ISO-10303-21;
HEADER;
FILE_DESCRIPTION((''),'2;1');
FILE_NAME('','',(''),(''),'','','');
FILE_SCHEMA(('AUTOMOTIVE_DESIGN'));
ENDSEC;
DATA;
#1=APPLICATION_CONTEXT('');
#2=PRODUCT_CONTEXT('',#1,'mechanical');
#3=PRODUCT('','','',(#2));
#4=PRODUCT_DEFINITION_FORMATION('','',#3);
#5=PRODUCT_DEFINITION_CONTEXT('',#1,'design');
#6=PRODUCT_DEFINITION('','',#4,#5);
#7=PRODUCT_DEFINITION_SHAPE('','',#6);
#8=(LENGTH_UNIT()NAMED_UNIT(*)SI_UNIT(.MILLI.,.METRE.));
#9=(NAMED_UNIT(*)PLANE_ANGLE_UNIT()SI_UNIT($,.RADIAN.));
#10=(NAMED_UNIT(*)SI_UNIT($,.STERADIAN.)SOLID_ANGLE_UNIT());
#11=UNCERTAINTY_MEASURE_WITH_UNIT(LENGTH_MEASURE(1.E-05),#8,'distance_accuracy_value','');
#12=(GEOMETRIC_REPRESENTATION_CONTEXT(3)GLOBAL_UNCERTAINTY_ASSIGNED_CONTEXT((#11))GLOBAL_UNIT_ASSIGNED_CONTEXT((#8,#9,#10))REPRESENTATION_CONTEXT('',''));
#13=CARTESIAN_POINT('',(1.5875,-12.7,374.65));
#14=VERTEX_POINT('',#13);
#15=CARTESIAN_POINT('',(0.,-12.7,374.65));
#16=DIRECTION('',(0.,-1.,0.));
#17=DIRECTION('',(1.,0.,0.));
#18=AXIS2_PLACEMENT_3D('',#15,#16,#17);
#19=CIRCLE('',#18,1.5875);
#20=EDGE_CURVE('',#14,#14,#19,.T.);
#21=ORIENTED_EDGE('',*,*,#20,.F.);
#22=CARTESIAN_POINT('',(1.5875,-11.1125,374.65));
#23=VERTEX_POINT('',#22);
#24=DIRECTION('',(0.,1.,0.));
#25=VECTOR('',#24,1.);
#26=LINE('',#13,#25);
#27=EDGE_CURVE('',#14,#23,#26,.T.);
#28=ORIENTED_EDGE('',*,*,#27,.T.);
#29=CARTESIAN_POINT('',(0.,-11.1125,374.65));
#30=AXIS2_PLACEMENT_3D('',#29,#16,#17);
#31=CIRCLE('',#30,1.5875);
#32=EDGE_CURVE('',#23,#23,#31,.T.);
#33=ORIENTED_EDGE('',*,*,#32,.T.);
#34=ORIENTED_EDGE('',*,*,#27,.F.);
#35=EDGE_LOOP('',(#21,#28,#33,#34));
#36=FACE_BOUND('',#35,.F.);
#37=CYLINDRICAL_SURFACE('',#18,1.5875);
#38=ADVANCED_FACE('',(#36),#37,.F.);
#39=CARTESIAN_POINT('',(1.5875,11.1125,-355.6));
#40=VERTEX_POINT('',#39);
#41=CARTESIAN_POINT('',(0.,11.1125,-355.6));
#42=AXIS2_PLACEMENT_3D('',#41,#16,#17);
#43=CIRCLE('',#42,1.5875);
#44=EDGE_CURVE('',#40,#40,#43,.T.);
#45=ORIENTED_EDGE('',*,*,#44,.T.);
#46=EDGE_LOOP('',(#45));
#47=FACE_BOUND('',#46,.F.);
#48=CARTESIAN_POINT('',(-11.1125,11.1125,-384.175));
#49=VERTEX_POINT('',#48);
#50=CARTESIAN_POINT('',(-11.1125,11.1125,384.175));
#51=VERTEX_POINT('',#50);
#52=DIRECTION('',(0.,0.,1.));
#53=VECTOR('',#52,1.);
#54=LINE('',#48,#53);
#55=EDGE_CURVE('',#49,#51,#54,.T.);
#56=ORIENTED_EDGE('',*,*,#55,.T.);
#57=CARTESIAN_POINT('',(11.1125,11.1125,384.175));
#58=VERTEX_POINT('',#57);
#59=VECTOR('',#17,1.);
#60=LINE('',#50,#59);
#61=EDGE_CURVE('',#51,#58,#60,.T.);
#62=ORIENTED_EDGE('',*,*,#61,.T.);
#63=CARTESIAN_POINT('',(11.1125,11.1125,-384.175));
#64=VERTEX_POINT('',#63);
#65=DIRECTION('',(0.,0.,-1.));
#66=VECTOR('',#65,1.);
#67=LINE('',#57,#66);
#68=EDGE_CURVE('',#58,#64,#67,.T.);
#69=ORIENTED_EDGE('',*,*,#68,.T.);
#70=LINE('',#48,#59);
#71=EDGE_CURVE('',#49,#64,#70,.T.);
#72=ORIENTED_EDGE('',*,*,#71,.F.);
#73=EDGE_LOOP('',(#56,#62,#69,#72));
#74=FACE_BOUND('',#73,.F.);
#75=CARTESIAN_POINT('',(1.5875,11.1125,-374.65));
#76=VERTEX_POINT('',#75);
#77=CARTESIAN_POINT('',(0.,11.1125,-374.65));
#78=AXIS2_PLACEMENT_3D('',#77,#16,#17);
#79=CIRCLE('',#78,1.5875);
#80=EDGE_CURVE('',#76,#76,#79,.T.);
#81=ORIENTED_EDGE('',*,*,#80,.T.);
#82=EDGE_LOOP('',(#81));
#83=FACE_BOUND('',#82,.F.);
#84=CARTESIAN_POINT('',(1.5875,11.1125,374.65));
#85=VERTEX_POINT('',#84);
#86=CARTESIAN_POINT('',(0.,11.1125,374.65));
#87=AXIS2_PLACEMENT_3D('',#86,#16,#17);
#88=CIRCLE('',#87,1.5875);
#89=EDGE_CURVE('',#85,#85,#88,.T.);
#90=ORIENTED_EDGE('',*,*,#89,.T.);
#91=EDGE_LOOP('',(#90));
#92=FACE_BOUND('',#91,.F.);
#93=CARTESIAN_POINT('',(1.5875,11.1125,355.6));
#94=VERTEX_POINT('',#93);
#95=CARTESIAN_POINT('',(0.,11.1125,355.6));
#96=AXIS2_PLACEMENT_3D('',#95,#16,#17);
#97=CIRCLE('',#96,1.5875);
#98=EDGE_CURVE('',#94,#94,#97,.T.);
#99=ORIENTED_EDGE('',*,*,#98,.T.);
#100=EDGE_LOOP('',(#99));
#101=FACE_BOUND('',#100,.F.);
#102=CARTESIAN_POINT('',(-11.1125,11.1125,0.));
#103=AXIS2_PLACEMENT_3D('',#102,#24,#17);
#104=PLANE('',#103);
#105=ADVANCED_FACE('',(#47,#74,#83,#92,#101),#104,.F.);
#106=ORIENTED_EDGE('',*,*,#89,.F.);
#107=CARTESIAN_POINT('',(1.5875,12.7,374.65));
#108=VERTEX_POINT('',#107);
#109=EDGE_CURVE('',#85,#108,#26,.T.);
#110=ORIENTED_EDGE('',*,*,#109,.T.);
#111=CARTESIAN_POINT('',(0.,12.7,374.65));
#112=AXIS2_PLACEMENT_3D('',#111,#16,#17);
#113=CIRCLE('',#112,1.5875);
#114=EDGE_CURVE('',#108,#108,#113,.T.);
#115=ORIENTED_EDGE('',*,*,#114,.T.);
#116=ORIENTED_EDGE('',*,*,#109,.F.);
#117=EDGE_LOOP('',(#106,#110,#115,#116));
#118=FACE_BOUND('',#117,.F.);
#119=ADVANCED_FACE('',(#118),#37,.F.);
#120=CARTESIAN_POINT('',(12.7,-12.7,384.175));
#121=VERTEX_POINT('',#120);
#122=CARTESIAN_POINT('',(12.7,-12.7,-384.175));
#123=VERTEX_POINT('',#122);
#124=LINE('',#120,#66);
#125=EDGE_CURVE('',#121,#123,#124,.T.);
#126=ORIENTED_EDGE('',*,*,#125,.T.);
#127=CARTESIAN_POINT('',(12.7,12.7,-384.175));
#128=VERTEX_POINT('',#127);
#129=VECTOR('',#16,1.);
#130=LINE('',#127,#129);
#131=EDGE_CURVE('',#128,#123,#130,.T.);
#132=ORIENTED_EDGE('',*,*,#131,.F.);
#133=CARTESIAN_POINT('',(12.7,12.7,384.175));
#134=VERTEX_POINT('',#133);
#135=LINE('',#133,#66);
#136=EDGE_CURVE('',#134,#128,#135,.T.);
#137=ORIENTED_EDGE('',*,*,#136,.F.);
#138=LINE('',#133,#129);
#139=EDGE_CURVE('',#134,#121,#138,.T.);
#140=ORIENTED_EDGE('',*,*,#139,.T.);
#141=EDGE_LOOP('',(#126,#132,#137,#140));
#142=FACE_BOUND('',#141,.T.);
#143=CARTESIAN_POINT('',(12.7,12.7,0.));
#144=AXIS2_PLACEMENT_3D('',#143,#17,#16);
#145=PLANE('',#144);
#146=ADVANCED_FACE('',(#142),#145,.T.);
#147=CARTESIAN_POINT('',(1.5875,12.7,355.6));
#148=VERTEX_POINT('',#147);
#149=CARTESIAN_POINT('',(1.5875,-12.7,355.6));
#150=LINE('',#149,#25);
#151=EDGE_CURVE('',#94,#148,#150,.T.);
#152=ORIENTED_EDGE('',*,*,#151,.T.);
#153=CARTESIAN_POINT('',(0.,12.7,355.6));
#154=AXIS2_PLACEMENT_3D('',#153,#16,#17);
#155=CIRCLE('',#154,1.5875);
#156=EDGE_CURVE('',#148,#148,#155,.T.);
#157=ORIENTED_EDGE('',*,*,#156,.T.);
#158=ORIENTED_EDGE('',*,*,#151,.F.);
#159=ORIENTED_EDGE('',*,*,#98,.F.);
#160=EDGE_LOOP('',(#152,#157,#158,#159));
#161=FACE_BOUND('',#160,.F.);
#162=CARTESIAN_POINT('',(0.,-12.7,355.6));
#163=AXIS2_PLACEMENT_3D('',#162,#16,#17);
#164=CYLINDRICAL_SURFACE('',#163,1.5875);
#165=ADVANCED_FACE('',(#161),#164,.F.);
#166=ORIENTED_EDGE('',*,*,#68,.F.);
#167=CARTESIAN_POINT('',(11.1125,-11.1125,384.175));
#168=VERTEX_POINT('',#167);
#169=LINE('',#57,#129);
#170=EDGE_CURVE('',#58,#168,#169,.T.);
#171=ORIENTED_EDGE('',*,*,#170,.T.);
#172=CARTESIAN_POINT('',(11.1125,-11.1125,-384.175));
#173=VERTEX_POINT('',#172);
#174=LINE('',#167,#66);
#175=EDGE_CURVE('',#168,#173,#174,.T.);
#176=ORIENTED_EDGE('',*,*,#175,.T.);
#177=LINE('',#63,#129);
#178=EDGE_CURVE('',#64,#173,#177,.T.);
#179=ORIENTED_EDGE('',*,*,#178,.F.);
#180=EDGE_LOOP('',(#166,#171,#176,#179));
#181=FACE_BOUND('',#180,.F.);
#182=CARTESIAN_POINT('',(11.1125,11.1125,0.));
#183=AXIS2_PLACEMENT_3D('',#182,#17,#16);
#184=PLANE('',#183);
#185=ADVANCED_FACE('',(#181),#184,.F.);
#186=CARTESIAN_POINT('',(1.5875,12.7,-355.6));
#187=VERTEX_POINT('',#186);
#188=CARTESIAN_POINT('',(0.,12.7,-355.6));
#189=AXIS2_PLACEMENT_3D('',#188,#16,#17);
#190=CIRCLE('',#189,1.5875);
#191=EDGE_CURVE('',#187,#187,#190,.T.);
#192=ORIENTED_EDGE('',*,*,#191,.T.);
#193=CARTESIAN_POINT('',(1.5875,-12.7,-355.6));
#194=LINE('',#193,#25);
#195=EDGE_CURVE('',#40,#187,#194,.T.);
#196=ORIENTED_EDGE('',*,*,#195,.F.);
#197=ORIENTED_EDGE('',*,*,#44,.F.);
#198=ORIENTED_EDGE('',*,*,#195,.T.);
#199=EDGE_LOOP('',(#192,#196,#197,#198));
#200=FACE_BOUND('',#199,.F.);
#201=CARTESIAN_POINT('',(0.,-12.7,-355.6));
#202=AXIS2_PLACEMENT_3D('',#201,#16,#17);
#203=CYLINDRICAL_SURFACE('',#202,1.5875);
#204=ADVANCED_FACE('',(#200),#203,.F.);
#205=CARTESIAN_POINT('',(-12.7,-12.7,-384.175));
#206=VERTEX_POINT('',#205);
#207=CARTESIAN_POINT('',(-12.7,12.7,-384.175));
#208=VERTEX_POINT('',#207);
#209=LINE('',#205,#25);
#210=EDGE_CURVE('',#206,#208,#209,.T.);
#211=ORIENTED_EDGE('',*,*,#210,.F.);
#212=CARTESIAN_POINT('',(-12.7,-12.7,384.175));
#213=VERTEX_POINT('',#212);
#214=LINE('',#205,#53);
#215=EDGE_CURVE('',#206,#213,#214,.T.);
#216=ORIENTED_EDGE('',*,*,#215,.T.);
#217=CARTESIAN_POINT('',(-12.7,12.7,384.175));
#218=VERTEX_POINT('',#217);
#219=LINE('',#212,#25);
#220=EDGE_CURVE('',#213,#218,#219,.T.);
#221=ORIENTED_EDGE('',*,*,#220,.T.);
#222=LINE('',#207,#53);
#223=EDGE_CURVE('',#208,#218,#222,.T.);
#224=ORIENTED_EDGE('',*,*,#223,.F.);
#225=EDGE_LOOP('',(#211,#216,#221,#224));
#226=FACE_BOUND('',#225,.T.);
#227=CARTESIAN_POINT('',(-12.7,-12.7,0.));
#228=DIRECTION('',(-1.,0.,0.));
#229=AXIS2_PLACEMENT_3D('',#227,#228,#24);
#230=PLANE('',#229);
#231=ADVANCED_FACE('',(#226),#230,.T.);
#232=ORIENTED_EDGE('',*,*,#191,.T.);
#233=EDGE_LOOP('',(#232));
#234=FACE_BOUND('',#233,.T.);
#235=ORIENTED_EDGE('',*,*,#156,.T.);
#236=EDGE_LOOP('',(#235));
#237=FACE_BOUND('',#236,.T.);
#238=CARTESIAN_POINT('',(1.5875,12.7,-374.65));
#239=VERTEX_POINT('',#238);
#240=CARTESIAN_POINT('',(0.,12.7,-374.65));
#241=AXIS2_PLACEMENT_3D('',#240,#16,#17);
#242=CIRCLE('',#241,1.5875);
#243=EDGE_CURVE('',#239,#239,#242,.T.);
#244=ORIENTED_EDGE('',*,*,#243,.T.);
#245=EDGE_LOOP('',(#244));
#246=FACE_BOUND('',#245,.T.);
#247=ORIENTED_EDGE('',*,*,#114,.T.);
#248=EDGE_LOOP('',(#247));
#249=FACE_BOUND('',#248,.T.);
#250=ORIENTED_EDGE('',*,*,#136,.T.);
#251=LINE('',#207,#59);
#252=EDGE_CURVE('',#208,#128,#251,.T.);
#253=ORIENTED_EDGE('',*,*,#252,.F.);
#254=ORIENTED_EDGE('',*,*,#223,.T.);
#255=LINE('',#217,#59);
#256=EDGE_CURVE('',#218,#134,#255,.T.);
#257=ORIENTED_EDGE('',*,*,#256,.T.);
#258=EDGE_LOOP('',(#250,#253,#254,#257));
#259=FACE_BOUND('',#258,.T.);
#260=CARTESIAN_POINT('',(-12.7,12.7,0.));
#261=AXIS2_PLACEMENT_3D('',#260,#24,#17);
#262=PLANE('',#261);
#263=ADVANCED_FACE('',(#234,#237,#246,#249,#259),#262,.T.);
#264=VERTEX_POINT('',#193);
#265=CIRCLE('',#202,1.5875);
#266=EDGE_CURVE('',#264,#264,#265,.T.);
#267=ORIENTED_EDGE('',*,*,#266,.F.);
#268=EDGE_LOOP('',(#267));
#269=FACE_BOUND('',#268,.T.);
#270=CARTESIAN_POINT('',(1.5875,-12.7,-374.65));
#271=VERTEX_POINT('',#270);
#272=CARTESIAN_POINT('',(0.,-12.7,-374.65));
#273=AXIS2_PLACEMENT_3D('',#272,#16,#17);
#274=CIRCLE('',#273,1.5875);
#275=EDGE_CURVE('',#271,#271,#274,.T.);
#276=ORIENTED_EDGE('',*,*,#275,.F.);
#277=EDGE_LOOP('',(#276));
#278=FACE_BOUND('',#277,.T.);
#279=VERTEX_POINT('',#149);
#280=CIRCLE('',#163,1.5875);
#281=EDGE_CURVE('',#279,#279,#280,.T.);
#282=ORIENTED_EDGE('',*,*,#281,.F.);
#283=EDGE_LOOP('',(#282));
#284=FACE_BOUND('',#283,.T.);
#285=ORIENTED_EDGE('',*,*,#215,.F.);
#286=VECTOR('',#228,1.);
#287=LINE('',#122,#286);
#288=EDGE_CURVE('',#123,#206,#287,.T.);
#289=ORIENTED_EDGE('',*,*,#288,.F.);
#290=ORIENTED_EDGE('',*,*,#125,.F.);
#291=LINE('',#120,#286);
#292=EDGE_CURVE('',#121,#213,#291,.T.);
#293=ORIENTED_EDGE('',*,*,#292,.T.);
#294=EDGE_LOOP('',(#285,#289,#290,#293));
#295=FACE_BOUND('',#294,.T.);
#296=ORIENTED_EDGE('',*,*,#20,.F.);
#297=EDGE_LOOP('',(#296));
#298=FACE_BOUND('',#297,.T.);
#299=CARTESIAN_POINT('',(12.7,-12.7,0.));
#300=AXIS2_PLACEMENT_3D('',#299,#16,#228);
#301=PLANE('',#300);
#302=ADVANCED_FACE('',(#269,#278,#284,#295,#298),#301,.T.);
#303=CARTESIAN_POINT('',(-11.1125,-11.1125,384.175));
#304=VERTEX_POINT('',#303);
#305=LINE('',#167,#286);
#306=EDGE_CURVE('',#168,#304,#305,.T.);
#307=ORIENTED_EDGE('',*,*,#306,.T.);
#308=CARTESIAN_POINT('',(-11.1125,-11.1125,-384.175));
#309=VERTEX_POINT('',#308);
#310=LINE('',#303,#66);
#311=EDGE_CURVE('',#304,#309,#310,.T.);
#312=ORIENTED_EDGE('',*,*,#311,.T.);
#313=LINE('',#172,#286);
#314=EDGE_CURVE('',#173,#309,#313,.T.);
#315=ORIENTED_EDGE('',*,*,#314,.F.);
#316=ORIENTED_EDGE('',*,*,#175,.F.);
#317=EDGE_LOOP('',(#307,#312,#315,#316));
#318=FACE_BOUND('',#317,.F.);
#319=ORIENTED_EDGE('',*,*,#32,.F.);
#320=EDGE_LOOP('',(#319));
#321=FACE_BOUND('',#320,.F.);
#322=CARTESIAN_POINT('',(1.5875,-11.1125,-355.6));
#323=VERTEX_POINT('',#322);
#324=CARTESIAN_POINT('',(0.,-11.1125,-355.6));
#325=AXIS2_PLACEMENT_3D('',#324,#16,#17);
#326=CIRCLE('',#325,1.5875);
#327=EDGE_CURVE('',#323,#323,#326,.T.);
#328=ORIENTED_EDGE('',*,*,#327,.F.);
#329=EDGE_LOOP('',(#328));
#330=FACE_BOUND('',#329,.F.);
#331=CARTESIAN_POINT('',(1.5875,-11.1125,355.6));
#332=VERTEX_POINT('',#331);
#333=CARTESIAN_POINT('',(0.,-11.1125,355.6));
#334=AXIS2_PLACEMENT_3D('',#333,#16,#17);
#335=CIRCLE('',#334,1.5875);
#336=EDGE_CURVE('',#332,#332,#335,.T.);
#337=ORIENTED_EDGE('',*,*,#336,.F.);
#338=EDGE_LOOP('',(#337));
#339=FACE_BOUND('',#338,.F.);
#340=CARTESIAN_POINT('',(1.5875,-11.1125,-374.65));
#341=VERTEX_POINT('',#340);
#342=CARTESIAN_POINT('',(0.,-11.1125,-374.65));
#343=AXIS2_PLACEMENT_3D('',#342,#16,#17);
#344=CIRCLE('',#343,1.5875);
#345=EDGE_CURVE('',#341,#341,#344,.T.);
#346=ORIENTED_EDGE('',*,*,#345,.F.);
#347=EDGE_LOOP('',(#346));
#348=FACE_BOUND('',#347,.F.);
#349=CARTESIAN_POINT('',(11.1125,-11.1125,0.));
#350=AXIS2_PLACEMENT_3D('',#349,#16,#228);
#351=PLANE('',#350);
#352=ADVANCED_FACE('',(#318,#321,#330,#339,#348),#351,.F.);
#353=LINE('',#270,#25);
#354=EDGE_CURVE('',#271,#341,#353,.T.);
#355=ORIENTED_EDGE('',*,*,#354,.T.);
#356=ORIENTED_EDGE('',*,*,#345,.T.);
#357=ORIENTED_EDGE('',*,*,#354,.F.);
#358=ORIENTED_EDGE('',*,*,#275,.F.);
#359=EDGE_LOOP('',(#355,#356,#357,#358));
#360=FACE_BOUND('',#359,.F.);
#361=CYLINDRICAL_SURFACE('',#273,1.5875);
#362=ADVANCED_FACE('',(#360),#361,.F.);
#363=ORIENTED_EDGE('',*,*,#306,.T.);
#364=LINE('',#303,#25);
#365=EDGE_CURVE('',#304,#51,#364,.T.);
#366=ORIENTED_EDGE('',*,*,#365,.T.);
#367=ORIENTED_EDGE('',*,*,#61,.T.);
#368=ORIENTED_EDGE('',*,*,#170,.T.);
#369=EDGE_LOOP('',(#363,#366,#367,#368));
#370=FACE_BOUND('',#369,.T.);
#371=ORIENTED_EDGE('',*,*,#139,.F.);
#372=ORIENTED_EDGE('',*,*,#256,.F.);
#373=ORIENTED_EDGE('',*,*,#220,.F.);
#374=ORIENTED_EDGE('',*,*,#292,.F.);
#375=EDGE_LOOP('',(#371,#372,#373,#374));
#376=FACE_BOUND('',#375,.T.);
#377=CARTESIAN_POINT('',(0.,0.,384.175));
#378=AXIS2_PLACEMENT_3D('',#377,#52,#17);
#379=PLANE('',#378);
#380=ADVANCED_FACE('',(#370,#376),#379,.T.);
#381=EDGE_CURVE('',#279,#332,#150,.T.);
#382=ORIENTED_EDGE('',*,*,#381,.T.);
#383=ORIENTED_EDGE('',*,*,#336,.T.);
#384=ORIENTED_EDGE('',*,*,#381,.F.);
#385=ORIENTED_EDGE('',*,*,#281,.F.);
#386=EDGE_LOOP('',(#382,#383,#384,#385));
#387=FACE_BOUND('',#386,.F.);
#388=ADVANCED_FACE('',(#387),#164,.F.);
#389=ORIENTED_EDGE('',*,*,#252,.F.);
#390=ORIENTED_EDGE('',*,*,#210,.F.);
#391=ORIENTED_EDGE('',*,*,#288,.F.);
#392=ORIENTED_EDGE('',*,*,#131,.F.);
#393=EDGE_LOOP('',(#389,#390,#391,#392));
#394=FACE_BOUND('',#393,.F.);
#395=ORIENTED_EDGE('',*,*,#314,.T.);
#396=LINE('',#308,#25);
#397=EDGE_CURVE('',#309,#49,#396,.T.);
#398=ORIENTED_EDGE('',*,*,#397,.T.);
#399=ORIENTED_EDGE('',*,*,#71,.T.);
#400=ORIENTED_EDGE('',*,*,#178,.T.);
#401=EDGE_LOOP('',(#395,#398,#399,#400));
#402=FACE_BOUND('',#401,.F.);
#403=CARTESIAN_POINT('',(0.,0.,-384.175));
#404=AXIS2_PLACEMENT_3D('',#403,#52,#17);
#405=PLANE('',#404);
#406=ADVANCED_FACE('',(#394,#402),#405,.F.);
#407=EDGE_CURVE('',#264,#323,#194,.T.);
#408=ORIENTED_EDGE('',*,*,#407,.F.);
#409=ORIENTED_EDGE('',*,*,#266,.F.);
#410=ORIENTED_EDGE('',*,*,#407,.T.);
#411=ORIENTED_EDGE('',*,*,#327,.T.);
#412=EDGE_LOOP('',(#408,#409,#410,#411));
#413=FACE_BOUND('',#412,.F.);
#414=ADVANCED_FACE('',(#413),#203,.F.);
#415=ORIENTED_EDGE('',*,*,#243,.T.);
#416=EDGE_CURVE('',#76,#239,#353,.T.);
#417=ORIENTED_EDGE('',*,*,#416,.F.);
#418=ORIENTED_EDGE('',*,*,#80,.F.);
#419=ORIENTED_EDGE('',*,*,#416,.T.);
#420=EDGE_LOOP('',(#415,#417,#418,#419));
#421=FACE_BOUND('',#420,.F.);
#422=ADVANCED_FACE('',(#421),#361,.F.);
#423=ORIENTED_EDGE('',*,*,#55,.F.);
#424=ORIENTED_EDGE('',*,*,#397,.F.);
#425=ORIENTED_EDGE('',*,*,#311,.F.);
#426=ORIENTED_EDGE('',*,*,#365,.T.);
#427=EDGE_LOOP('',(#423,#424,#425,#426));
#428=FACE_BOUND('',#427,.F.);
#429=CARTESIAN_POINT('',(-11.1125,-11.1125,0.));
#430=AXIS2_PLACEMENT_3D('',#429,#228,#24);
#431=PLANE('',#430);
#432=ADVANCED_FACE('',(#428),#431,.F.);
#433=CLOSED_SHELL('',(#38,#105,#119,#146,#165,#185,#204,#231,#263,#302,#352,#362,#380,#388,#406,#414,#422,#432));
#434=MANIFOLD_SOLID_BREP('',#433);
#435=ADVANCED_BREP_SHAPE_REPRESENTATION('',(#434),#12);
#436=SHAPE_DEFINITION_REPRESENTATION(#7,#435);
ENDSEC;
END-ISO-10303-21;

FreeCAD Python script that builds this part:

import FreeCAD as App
import Part
import Sketcher
Q = App.Units.Quantity

doc = App.newDocument("Part")
body = doc.addObject("PartDesign::Body", "Body")

sketch1 = doc.addObject("Sketcher::SketchObject", "Sketch")
body.addObject(sketch1)
sketch1.AttachmentSupport = (doc.XY_Plane, [""])
sketch1.MapMode = "FlatFace"
sketch1.addGeometry([
    Part.LineSegment(App.Vector(12.7, 12.7, 0), App.Vector(-12.7, 12.7, 0)),
    Part.LineSegment(App.Vector(-12.7, 12.7, 0), App.Vector(-12.7, -12.7, 0)),
    Part.LineSegment(App.Vector(-12.7, -12.7, 0), App.Vector(12.7, -12.7, 0)),
    Part.LineSegment(App.Vector(12.7, -12.7, 0), App.Vector(12.7, 12.7, 0)),
    Part.LineSegment(App.Vector(-11.1125, -11.1125, 0), App.Vector(-11.1125, 11.1125, 0)),
    Part.LineSegment(App.Vector(-11.1125, 11.1125, 0), App.Vector(11.1125, 11.1125, 0)),
    Part.LineSegment(App.Vector(11.1125, 11.1125, 0), App.Vector(11.1125, -11.1125, 0)),
    Part.LineSegment(App.Vector(11.1125, -11.1125, 0), App.Vector(-11.1125, -11.1125, 0)),
], False)
sketch1.addConstraint([
    Sketcher.Constraint("Coincident", 0, 2, 1, 1),
    Sketcher.Constraint("Coincident", 1, 2, 2, 1),
    Sketcher.Constraint("Coincident", 2, 2, 3, 1),
    Sketcher.Constraint("Coincident", 3, 2, 0, 1),
    Sketcher.Constraint("Coincident", 4, 2, 5, 1),
    Sketcher.Constraint("Coincident", 5, 2, 6, 1),
    Sketcher.Constraint("Coincident", 6, 2, 7, 1),
    Sketcher.Constraint("Coincident", 7, 2, 4, 1),
    Sketcher.Constraint("Horizontal", 0),
    Sketcher.Constraint("Vertical", 1),
    Sketcher.Constraint("Horizontal", 2),
    Sketcher.Constraint("Vertical", 3),
    Sketcher.Constraint("Vertical", 4),
    Sketcher.Constraint("Horizontal", 5),
    Sketcher.Constraint("Vertical", 6),
    Sketcher.Constraint("Horizontal", 7),
    Sketcher.Constraint("Symmetric", 0, 2, 2, 2, -1, 1),
    Sketcher.Constraint("Symmetric", 4, 2, 6, 2, -1, 1),
    Sketcher.Constraint("Equal", 2, 1),
    Sketcher.Constraint("Equal", 7, 4),
    Sketcher.Constraint("DistanceX", 0, 2, 0, 1, Q("1 in")),
    Sketcher.Constraint("DistanceX", 0, 2, 4, 2, Q("0.0625 in")),
])
pad1 = doc.addObject("PartDesign::Pad", "Pad")
body.addObject(pad1)
pad1.Profile = sketch1
pad1.Length = Q("30.25 in")
pad1.Midplane = True

sketch2 = doc.addObject("Sketcher::SketchObject", "Sketch001")
body.addObject(sketch2)
sketch2.AttachmentSupport = (doc.XZ_Plane, [""])
sketch2.MapMode = "FlatFace"
sketch2.AttachmentOffset = App.Placement(App.Vector(0, 0, 0.5 * 25.4), App.Rotation())
sketch2.addGeometry([
    Part.Circle(App.Vector(0, 374.65, 0), App.Vector(0, 0, 1), 1.5875),
    Part.Circle(App.Vector(0, 355.6, 0), App.Vector(0, 0, 1), 1.5875),
    Part.Circle(App.Vector(0, -374.65, 0), App.Vector(0, 0, 1), 1.5875),
    Part.Circle(App.Vector(0, -355.6, 0), App.Vector(0, 0, 1), 1.5875),
], False)
sketch2.addConstraint([
    Sketcher.Constraint("Equal", 0, 1),
    Sketcher.Constraint("Equal", 1, 2),
    Sketcher.Constraint("Equal", 2, 3),
    Sketcher.Constraint("Symmetric", 0, 3, 2, 3, -1, 1),
    Sketcher.Constraint("Symmetric", 1, 3, 3, 3, -1, 1),
    Sketcher.Constraint("PointOnObject", 0, 3, -2),
    Sketcher.Constraint("PointOnObject", 1, 3, -2),
    Sketcher.Constraint("Diameter", 0, Q("0.125 in")),
    Sketcher.Constraint("DistanceY", 1, 3, 0, 3, Q("0.75 in")),
    Sketcher.Constraint("DistanceY", -1, 1, 1, 3, Q("14 in")),
])
pocket1 = doc.addObject("PartDesign::Pocket", "Pocket")
body.addObject(pocket1)
pocket1.Profile = sketch2
pocket1.Type = "ThroughAll"

doc.recompute()
